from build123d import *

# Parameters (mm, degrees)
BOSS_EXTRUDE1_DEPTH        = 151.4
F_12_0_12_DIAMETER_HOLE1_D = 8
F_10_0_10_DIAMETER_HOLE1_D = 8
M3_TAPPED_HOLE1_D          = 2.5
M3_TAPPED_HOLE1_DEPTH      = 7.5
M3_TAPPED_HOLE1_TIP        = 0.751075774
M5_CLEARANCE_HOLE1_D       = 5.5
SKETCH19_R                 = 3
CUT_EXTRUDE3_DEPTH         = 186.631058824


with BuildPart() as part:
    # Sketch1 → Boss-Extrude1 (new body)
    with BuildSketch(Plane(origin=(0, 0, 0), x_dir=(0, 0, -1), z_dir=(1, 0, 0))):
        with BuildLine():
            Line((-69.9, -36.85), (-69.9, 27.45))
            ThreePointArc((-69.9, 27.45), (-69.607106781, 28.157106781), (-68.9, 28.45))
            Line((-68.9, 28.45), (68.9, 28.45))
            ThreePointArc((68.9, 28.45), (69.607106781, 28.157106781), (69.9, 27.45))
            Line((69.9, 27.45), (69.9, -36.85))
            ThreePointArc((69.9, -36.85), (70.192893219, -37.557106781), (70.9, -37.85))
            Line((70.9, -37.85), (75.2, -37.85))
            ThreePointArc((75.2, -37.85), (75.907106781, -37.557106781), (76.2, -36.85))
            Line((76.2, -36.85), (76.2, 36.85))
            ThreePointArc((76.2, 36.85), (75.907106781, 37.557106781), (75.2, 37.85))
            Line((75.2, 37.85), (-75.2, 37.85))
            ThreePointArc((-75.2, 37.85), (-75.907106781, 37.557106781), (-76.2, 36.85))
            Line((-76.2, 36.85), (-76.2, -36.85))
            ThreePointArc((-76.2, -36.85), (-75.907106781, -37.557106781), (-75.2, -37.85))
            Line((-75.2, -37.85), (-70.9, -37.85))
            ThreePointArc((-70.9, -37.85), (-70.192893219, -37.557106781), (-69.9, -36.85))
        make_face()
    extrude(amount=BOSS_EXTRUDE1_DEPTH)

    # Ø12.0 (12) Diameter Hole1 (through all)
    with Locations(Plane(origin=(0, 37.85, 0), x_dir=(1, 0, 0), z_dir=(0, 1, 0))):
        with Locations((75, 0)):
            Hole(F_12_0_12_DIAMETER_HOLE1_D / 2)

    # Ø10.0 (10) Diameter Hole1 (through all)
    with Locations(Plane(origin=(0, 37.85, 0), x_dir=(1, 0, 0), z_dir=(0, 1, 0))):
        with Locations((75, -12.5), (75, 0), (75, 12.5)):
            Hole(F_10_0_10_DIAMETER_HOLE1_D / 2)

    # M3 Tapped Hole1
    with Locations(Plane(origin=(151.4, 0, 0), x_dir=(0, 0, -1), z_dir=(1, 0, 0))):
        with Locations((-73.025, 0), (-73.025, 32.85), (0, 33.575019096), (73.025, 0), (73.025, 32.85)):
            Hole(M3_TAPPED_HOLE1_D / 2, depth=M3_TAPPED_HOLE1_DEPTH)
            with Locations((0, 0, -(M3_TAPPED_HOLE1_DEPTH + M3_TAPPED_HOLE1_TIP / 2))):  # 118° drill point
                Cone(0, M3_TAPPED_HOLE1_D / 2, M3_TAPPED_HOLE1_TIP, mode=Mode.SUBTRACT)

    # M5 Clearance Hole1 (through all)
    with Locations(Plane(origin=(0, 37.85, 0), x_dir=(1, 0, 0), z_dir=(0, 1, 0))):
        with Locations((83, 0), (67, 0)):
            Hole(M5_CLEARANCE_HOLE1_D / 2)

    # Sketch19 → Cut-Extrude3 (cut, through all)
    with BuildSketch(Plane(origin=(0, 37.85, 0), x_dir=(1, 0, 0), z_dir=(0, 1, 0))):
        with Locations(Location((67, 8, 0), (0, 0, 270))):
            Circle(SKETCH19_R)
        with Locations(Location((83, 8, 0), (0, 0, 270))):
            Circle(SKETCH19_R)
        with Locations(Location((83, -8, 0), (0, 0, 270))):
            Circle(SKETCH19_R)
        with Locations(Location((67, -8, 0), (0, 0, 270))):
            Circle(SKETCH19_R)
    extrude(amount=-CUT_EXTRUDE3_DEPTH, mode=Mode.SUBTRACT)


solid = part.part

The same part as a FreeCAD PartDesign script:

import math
import FreeCAD as App
import Part
import Sketcher

V = App.Vector

doc = App.newDocument("Part")
params = doc.addObject("Spreadsheet::Sheet", "Params")
for row, (alias, value) in enumerate([
    ("sketch1_radius", "1 mm"),
    ("sketch1_width", "64.3 mm"),
    ("sketch1_width2", "73.7 mm"),
    ("sketch1_height", "137.8 mm"),
    ("sketch1_height2", "4.3 mm"),
    ("pad1_length", "151.4 mm"),
    ("sketch2_diameter", "8 mm"),
    ("hole_diameter", "8 mm"),
    ("sketch3_diameter", "8 mm"),
    ("hole2_diameter", "8 mm"),
    ("sketch4_diameter", "2.5 mm"),
    ("hole3_diameter", "2.5 mm"),
    ("hole3_depth", "7.5 mm"),
    ("sketch5_diameter", "5.5 mm"),
    ("hole4_diameter", "5.5 mm"),
    ("sketch6_diameter", "6 mm"),
], start=1):
    params.set(f"A{row}", alias)
    params.set(f"B{row}", "=" + value)
    params.setAlias(f"B{row}", alias)

body = doc.addObject("PartDesign::Body", "Body")

# Sketch on YZ plane
sketch1 = body.newObject("Sketcher::SketchObject", "Sketch")
sketch1.AttachmentSupport = (doc.getObject("YZ_Plane"), [""])
sketch1.MapMode = "FlatFace"
sketch1.addGeometry([
    Part.LineSegment(V(-36.9, 69.9, 0), V(27.4, 69.9, 0)),  # 0
    Part.ArcOfCircle(Part.Circle(V(27.4, 68.9, 0), V(0, 0, 1), 1), math.radians(0), math.radians(90)),  # 1
    Part.LineSegment(V(28.4, 68.9, 0), V(28.4, -68.9, 0)),  # 2
    Part.ArcOfCircle(Part.Circle(V(27.4, -68.9, 0), V(0, 0, 1), 1), math.radians(-90), math.radians(0)),  # 3
    Part.LineSegment(V(27.4, -69.9, 0), V(-36.9, -69.9, 0)),  # 4
    Part.ArcOfCircle(Part.Circle(V(-36.8, -70.9, 0), V(0, 0, 1), 1), math.radians(90), math.radians(180)),  # 5
    Part.LineSegment(V(-37.9, -70.9, 0), V(-37.9, -75.2, 0)),  # 6
    Part.ArcOfCircle(Part.Circle(V(-36.8, -75.2, 0), V(0, 0, 1), 1), math.radians(-180), math.radians(-90)),  # 7
    Part.LineSegment(V(-36.9, -76.2, 0), V(36.9, -76.2, 0)),  # 8
    Part.ArcOfCircle(Part.Circle(V(36.8, -75.2, 0), V(0, 0, 1), 1), math.radians(-90), math.radians(0)),  # 9
    Part.LineSegment(V(37.9, -75.2, 0), V(37.9, 75.2, 0)),  # 10
    Part.ArcOfCircle(Part.Circle(V(36.8, 75.2, 0), V(0, 0, 1), 1), math.radians(0), math.radians(90)),  # 11
    Part.LineSegment(V(36.9, 76.2, 0), V(-36.9, 76.2, 0)),  # 12
    Part.ArcOfCircle(Part.Circle(V(-36.8, 75.2, 0), V(0, 0, 1), 1), math.radians(90), math.radians(180)),  # 13
    Part.LineSegment(V(-37.9, 75.2, 0), V(-37.9, 70.9, 0)),  # 14
    Part.ArcOfCircle(Part.Circle(V(-36.8, 70.9, 0), V(0, 0, 1), 1), math.radians(-180), math.radians(-90)),  # 15
], False)
sketch1.addConstraint([
    Sketcher.Constraint("Tangent", 0, 2, 1, 2),
    Sketcher.Constraint("Tangent", 1, 1, 2, 1),
    Sketcher.Constraint("Tangent", 2, 2, 3, 2),
    Sketcher.Constraint("Tangent", 3, 1, 4, 1),
    Sketcher.Constraint("Tangent", 4, 2, 5, 1),
    Sketcher.Constraint("Tangent", 5, 2, 6, 1),
    Sketcher.Constraint("Tangent", 6, 2, 7, 1),
    Sketcher.Constraint("Tangent", 7, 2, 8, 1),
    Sketcher.Constraint("Tangent", 8, 2, 9, 1),
    Sketcher.Constraint("Tangent", 9, 2, 10, 1),
    Sketcher.Constraint("Tangent", 10, 2, 11, 1),
    Sketcher.Constraint("Tangent", 11, 2, 12, 1),
    Sketcher.Constraint("Tangent", 12, 2, 13, 1),
    Sketcher.Constraint("Tangent", 13, 2, 14, 1),
    Sketcher.Constraint("Tangent", 14, 2, 15, 1),
    Sketcher.Constraint("Tangent", 15, 2, 0, 1),
    Sketcher.Constraint("Horizontal", 0),
    Sketcher.Constraint("Vertical", 2),
    Sketcher.Constraint("Horizontal", 4),
    Sketcher.Constraint("Vertical", 6),
    Sketcher.Constraint("Horizontal", 8),
    Sketcher.Constraint("Vertical", 10),
    Sketcher.Constraint("Horizontal", 12),
    Sketcher.Constraint("Vertical", 14),
    Sketcher.Constraint("Equal", 1, 3),
    Sketcher.Constraint("Equal", 3, 5),
    Sketcher.Constraint("Equal", 5, 7),
    Sketcher.Constraint("Equal", 7, 9),
    Sketcher.Constraint("Equal", 9, 11),
    Sketcher.Constraint("Equal", 11, 13),
    Sketcher.Constraint("Equal", 13, 15),
    Sketcher.Constraint("Symmetric", 7, 3, 11, 3, -1, 1),
    Sketcher.Constraint("Symmetric", 5, 3, 15, 3, -1),
    Sketcher.Constraint("Radius", 1, 1.0),
    Sketcher.Constraint("DistanceX", 0, 1, 0, 2, 64.3),
    Sketcher.Constraint("DistanceX", 8, 1, 8, 2, 73.7),
    Sketcher.Constraint("DistanceY", 2, 2, 2, 1, 137.8),
    Sketcher.Constraint("DistanceY", 6, 2, 6, 1, 4.3),
])
sketch1.setExpression("Constraints[33]", "Params.sketch1_radius")
sketch1.setExpression("Constraints[34]", "Params.sketch1_width")
sketch1.setExpression("Constraints[35]", "Params.sketch1_width2")
sketch1.setExpression("Constraints[36]", "Params.sketch1_height")
sketch1.setExpression("Constraints[37]", "Params.sketch1_height2")
pad1 = body.newObject("PartDesign::Pad", "Pad")
pad1.Profile = sketch1
pad1.setExpression("Length", "Params.pad1_length")

# Sketch on XZ plane
sketch2 = body.newObject("Sketcher::SketchObject", "Sketch001")
sketch2.AttachmentSupport = (doc.getObject("XZ_Plane"), [""])
sketch2.MapMode = "FlatFace"
sketch2.AttachmentOffset = App.Placement(V(0, 0, -37.85), App.Rotation())
sketch2.addGeometry(Part.Circle(V(75, 0, 0), V(0, 0, 1), 4), False)
sketch2.addConstraint([
    Sketcher.Constraint("PointOnObject", 0, 3, -1),
    Sketcher.Constraint("Diameter", 0, 8.0),
    Sketcher.Constraint("DistanceX", -1, 1, 0, 3, 75.0),
])
sketch2.setExpression("Constraints[1]", "Params.sketch2_diameter")
doc.recompute()
hole = body.newObject("PartDesign::Hole", "Hole")
hole.Profile = sketch2
hole.ThreadType = "None"
hole.setExpression("Diameter", "Params.hole_diameter")
hole.DepthType = "ThroughAll"
hole.Reversed = True

# Sketch on XZ plane
sketch3 = body.newObject("Sketcher::SketchObject", "Sketch002")
sketch3.AttachmentSupport = (doc.getObject("XZ_Plane"), [""])
sketch3.MapMode = "FlatFace"
sketch3.AttachmentOffset = App.Placement(V(0, 0, -37.85), App.Rotation())
sketch3.addGeometry([
    Part.Circle(V(75, 12.5, 0), V(0, 0, 1), 4),
    Part.Circle(V(75, 0, 0), V(0, 0, 1), 4),
    Part.Circle(V(75, -12.5, 0), V(0, 0, 1), 4),
], False)
sketch3.addConstraint([
    Sketcher.Constraint("Equal", 0, 1),
    Sketcher.Constraint("Equal", 1, 2),
    Sketcher.Constraint("Symmetric", 0, 3, 2, 3, -1),
    Sketcher.Constraint("PointOnObject", 1, 3, -1),
    Sketcher.Constraint("Vertical", 0, 3, 1, 3),
    Sketcher.Constraint("Diameter", 0, 8.0),
    Sketcher.Constraint("DistanceX", -1, 1, 0, 3, 75.0),
    Sketcher.Constraint("DistanceY", 2, 3, 0, 3, 25.0),
])
sketch3.setExpression("Constraints[5]", "Params.sketch3_diameter")
doc.recompute()
hole2 = body.newObject("PartDesign::Hole", "Hole001")
hole2.Profile = sketch3
hole2.ThreadType = "None"
hole2.setExpression("Diameter", "Params.hole2_diameter")
hole2.DepthType = "ThroughAll"
hole2.Reversed = True

# Sketch on YZ plane
sketch4 = body.newObject("Sketcher::SketchObject", "Sketch003")
sketch4.AttachmentSupport = (doc.getObject("YZ_Plane"), [""])
sketch4.MapMode = "FlatFace"
sketch4.AttachmentOffset = App.Placement(V(0, 0, 151.4), App.Rotation())
sketch4.addGeometry([
    Part.Circle(V(0, 73, 0), V(0, 0, 1), 1.2),  # 0
    Part.Circle(V(32.9, 73, 0), V(0, 0, 1), 1.2),  # 1
    Part.Circle(V(33.6, 0, 0), V(0, 0, 1), 1.2),  # 2
    Part.Circle(V(0, -73, 0), V(0, 0, 1), 1.2),  # 3
    Part.Circle(V(32.9, -73, 0), V(0, 0, 1), 1.2),  # 4
], False)
sketch4.addConstraint([
    Sketcher.Constraint("Equal", 0, 1),
    Sketcher.Constraint("Equal", 1, 2),
    Sketcher.Constraint("Equal", 2, 3),
    Sketcher.Constraint("Equal", 3, 4),
    Sketcher.Constraint("Symmetric", 0, 3, 3, 3, -1, 1),
    Sketcher.Constraint("Symmetric", 1, 3, 4, 3, -1),
    Sketcher.Constraint("PointOnObject", 0, 3, -2),
    Sketcher.Constraint("PointOnObject", 2, 3, -1),
    Sketcher.Constraint("Horizontal", 0, 3, 1, 3),
    Sketcher.Constraint("Diameter", 0, 2.5),
    Sketcher.Constraint("DistanceX", -1, 1, 1, 3, 32.85),
    Sketcher.Constraint("DistanceY", 3, 3, 0, 3, 146.05),
    Sketcher.Constraint("DistanceX", -1, 1, 2, 3, 33.575019),
])
sketch4.setExpression("Constraints[9]", "Params.sketch4_diameter")
doc.recompute()
hole3 = body.newObject("PartDesign::Hole", "Hole002")
hole3.Profile = sketch4
hole3.ThreadType = "None"
hole3.setExpression("Diameter", "Params.hole3_diameter")
hole3.DepthType = "Dimension"
hole3.setExpression("Depth", "Params.hole3_depth")
hole3.DrillPoint = "Angled"
hole3.DrillPointAngle = 118

# Sketch on XZ plane
sketch5 = body.newObject("Sketcher::SketchObject", "Sketch004")
sketch5.AttachmentSupport = (doc.getObject("XZ_Plane"), [""])
sketch5.MapMode = "FlatFace"
sketch5.AttachmentOffset = App.Placement(V(0, 0, -37.85), App.Rotation())
sketch5.addGeometry([
    Part.Circle(V(83, 0, 0), V(0, 0, 1), 2.8),
    Part.Circle(V(67, 0, 0), V(0, 0, 1), 2.8),
], False)
sketch5.addConstraint([
    Sketcher.Constraint("Equal", 0, 1),
    Sketcher.Constraint("PointOnObject", 0, 3, -1),
    Sketcher.Constraint("PointOnObject", 1, 3, -1),
    Sketcher.Constraint("Diameter", 0, 5.5),
    Sketcher.Constraint("DistanceX", -1, 1, 0, 3, 83.0),
    Sketcher.Constraint("DistanceX", -1, 1, 1, 3, 67.0),
])
sketch5.setExpression("Constraints[3]", "Params.sketch5_diameter")
doc.recompute()
hole4 = body.newObject("PartDesign::Hole", "Hole003")
hole4.Profile = sketch5
hole4.ThreadType = "None"
hole4.setExpression("Diameter", "Params.hole4_diameter")
hole4.DepthType = "ThroughAll"
hole4.Reversed = True

# Sketch on XZ plane
sketch6 = body.newObject("Sketcher::SketchObject", "Sketch005")
sketch6.AttachmentSupport = (doc.getObject("XZ_Plane"), [""])
sketch6.MapMode = "FlatFace"
sketch6.AttachmentOffset = App.Placement(V(0, 0, -37.85), App.Rotation())
sketch6.addGeometry([
    Part.Circle(V(67, -8, 0), V(0, 0, 1), 3),
    Part.Circle(V(83, -8, 0), V(0, 0, 1), 3),
    Part.Circle(V(83, 8, 0), V(0, 0, 1), 3),
    Part.Circle(V(67, 8, 0), V(0, 0, 1), 3),
], False)
sketch6.addConstraint([
    Sketcher.Constraint("Equal", 0, 1),
    Sketcher.Constraint("Equal", 1, 2),
    Sketcher.Constraint("Equal", 2, 3),
    Sketcher.Constraint("Symmetric", 1, 3, 2, 3, -1),
    Sketcher.Constraint("Symmetric", 0, 3, 3, 3, -1),
    Sketcher.Constraint("Horizontal", 0, 3, 1, 3),
    Sketcher.Constraint("Diameter", 0, 6.0),
    Sketcher.Constraint("DistanceX", -1, 1, 0, 3, 67.0),
    Sketcher.Constraint("DistanceY", 0, 3, -1, 1, 8.0),
    Sketcher.Constraint("DistanceX", -1, 1, 1, 3, 83.0),
])
sketch6.setExpression("Constraints[6]", "Params.sketch6_diameter")
pocket1 = body.newObject("PartDesign::Pocket", "Pocket")
pocket1.Profile = sketch6
pocket1.Type = "ThroughAll"
pocket1.Reversed = True

doc.recompute()
